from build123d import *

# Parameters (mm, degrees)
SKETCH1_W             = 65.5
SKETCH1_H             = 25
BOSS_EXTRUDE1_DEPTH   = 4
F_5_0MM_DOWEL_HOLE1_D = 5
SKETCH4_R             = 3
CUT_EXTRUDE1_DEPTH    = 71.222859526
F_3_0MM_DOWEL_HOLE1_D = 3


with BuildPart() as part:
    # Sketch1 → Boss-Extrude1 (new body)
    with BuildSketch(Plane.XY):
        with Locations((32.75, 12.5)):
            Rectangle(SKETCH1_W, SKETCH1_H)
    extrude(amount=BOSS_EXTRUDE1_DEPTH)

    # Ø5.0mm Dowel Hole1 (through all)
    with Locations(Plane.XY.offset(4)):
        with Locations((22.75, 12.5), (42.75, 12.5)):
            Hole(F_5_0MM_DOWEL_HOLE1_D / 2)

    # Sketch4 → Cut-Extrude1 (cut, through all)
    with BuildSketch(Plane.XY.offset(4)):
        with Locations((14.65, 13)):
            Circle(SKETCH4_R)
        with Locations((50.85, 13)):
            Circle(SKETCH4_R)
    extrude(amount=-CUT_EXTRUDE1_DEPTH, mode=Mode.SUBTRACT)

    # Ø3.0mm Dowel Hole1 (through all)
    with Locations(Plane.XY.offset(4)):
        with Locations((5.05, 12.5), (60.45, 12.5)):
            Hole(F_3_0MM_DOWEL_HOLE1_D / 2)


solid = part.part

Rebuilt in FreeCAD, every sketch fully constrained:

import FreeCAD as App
import Part
import Sketcher

V = App.Vector

doc = App.newDocument("Part")
params = doc.addObject("Spreadsheet::Sheet", "Params")
for row, (alias, value) in enumerate([
    ("sketch1_height", "25 mm"),
    ("sketch1_width", "65.5 mm"),
    ("pad1_length", "4 mm"),
    ("sketch2_diameter", "5 mm"),
    ("hole_diameter", "5 mm"),
    ("sketch3_diameter", "6 mm"),
    ("sketch4_diameter", "3 mm"),
    ("hole2_diameter", "3 mm"),
], start=1):
    params.set(f"A{row}", alias)
    params.set(f"B{row}", "=" + value)
    params.setAlias(f"B{row}", alias)

body = doc.addObject("PartDesign::Body", "Body")

sketch1 = body.newObject("Sketcher::SketchObject", "Sketch")
sketch1.AttachmentSupport = (doc.getObject("XY_Plane"), [""])
sketch1.MapMode = "FlatFace"
sketch1.addGeometry(Part.LineSegment(V(0, 25, 0), V(0, 0, 0)), False)
sketch1.addGeometry(Part.LineSegment(V(0, 0, 0), V(66, 0, 0)), False)
sketch1.addGeometry(Part.LineSegment(V(66, 0, 0), V(66, 25, 0)), False)
sketch1.addGeometry(Part.LineSegment(V(66, 25, 0), V(0, 25, 0)), False)
sketch1.addConstraint(Sketcher.Constraint("Coincident", 0, 2, 1, 1))
sketch1.addConstraint(Sketcher.Constraint("Coincident", 1, 2, 2, 1))
sketch1.addConstraint(Sketcher.Constraint("Coincident", 2, 2, 3, 1))
sketch1.addConstraint(Sketcher.Constraint("Coincident", 3, 2, 0, 1))
sketch1.addConstraint(Sketcher.Constraint("Vertical", 0))
sketch1.addConstraint(Sketcher.Constraint("Horizontal", 1))
sketch1.addConstraint(Sketcher.Constraint("Vertical", 2))
sketch1.addConstraint(Sketcher.Constraint("Horizontal", 3))
sketch1.addConstraint(Sketcher.Constraint("Coincident", 0, 2, -1, 1))
sketch1.addConstraint(Sketcher.Constraint("DistanceY", 0, 2, 0, 1, 25.0))
sketch1.addConstraint(Sketcher.Constraint("DistanceX", 1, 1, 1, 2, 65.5))
sketch1.setExpression("Constraints[9]", "Params.sketch1_height")
sketch1.setExpression("Constraints[10]", "Params.sketch1_width")
pad1 = body.newObject("PartDesign::Pad", "Pad")
pad1.Profile = sketch1
pad1.setExpression("Length", "Params.pad1_length")

sketch2 = body.newObject("Sketcher::SketchObject", "Sketch001")
sketch2.AttachmentSupport = (doc.getObject("XY_Plane"), [""])
sketch2.MapMode = "FlatFace"
sketch2.AttachmentOffset = App.Placement(V(0, 0, 4), App.Rotation())
sketch2.addGeometry(Part.Circle(V(22.8, 12.5, 0), V(0, 0, 1), 2.5), False)
sketch2.addGeometry(Part.Circle(V(42.8, 12.5, 0), V(0, 0, 1), 2.5), False)
sketch2.addConstraint(Sketcher.Constraint("Equal", 0, 1))
sketch2.addConstraint(Sketcher.Constraint("Horizontal", 0, 3, 1, 3))
sketch2.addConstraint(Sketcher.Constraint("Diameter", 0, 5.0))
sketch2.addConstraint(Sketcher.Constraint("DistanceX", 0, 3, 1, 3, 20.0))
sketch2.addConstraint(Sketcher.Constraint("DistanceY", -1, 1, 0, 3, 12.5))
sketch2.addConstraint(Sketcher.Constraint("DistanceX", -1, 1, 0, 3, 22.75))
sketch2.setExpression("Constraints[2]", "Params.sketch2_diameter")
doc.recompute()
hole = body.newObject("PartDesign::Hole", "Hole")
hole.Profile = sketch2
hole.ThreadType = "None"
hole.setExpression("Diameter", "Params.hole_diameter")
hole.DepthType = "ThroughAll"

sketch3 = body.newObject("Sketcher::SketchObject", "Sketch002")
sketch3.AttachmentSupport = (doc.getObject("XY_Plane"), [""])
sketch3.MapMode = "FlatFace"
sketch3.AttachmentOffset = App.Placement(V(0, 0, 4), App.Rotation())
sketch3.addGeometry(Part.Circle(V(14.7, 13, 0), V(0, 0, 1), 3), False)
sketch3.addGeometry(Part.Circle(V(50.9, 13, 0), V(0, 0, 1), 3), False)
sketch3.addConstraint(Sketcher.Constraint("Equal", 0, 1))
sketch3.addConstraint(Sketcher.Constraint("Horizontal", 0, 3, 1, 3))
sketch3.addConstraint(Sketcher.Constraint("Diameter", 0, 6.0))
sketch3.addConstraint(Sketcher.Constraint("DistanceY", -1, 1, 0, 3, 13.0))
sketch3.addConstraint(Sketcher.Constraint("DistanceX", 0, 3, 1, 3, 36.2))
sketch3.addConstraint(Sketcher.Constraint("DistanceX", -1, 1, 0, 3, 14.65))
sketch3.setExpression("Constraints[2]", "Params.sketch3_diameter")
pocket1 = body.newObject("PartDesign::Pocket", "Pocket")
pocket1.Profile = sketch3
pocket1.Type = "ThroughAll"

sketch4 = body.newObject("Sketcher::SketchObject", "Sketch003")
sketch4.AttachmentSupport = (doc.getObject("XY_Plane"), [""])
sketch4.MapMode = "FlatFace"
sketch4.AttachmentOffset = App.Placement(V(0, 0, 4), App.Rotation())
sketch4.addGeometry(Part.Circle(V(5, 12.5, 0), V(0, 0, 1), 1.5), False)
sketch4.addGeometry(Part.Circle(V(60.5, 12.5, 0), V(0, 0, 1), 1.5), False)
sketch4.addConstraint(Sketcher.Constraint("Equal", 0, 1))
sketch4.addConstraint(Sketcher.Constraint("Horizontal", 0, 3, 1, 3))
sketch4.addConstraint(Sketcher.Constraint("Diameter", 0, 3.0))
sketch4.addConstraint(Sketcher.Constraint("DistanceY", -1, 1, 0, 3, 12.5))
sketch4.addConstraint(Sketcher.Constraint("DistanceX", 0, 3, 1, 3, 55.4))
sketch4.addConstraint(Sketcher.Constraint("DistanceX", -1, 1, 0, 3, 5.05))
sketch4.setExpression("Constraints[2]", "Params.sketch4_diameter")
doc.recompute()
hole2 = body.newObject("PartDesign::Hole", "Hole001")
hole2.Profile = sketch4
hole2.ThreadType = "None"
hole2.setExpression("Diameter", "Params.hole2_diameter")
hole2.DepthType = "ThroughAll"

doc.recompute()
